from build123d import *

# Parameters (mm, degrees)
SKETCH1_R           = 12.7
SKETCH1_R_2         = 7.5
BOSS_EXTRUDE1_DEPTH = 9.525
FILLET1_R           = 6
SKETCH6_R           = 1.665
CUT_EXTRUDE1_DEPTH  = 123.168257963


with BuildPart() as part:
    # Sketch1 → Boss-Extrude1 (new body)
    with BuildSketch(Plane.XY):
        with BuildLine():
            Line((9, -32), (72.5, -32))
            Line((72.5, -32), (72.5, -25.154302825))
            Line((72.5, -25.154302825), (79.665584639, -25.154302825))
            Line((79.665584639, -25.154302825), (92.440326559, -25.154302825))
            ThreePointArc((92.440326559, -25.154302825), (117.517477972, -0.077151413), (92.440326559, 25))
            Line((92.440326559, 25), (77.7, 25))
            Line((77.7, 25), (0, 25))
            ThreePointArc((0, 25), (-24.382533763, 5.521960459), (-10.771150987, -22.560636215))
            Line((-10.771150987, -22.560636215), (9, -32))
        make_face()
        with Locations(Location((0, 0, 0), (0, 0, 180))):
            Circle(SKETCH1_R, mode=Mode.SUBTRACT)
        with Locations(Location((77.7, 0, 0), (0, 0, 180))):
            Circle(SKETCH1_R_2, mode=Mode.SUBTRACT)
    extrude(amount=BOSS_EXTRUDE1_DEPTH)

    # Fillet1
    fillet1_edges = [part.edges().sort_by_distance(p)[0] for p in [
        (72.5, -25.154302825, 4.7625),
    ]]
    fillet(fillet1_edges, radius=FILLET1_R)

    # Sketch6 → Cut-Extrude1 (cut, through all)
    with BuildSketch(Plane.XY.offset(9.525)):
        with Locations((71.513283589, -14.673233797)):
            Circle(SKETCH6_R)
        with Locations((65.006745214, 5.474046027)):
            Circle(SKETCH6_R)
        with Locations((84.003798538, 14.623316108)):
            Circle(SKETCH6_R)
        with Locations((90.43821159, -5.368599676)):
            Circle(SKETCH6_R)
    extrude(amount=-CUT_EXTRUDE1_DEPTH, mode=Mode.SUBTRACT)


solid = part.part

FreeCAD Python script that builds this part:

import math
import FreeCAD as App
import Part
import Sketcher
from FreeCAD import Vector
Q = App.Units.Quantity


def edges_at(feature, points):
    """Names of the edges that pass closest to the given points."""
    edges = feature.Shape.Edges
    near = lambda p: min(range(len(edges)), key=lambda i: edges[i].distToShape(Part.Vertex(*p))[0])
    return sorted({f"Edge{near(p) + 1}" for p in points})

doc = App.newDocument("Part")
body = doc.addObject("PartDesign::Body", "Body")

# Sketch on XY plane
sketch1 = body.newObject("Sketcher::SketchObject", "Sketch")
sketch1.AttachmentSupport = (doc.getObject("XY_Plane"), [""])
sketch1.MapMode = "FlatFace"
sketch1.addGeometry([
    Part.LineSegment(Vector(9, -32, 0), Vector(72.5, -32, 0)),  # 0
    Part.LineSegment(Vector(72.5, -32, 0), Vector(72.5, -25.154303, 0)),  # 1
    Part.LineSegment(Vector(72.5, -25.154303, 0), Vector(92.440327, -25.154303, 0)),  # 2
    Part.ArcOfCircle(Part.Circle(Vector(92.440327, -0.077151, 0), Vector(0, 0, 1), 25.077151), math.radians(-90), math.radians(90)),  # 3
    Part.LineSegment(Vector(92.440327, 25, 0), Vector(0, 25, 0)),  # 4
    Part.ArcOfCircle(Part.Circle(Vector(0, 0, 0), Vector(0, 0, 1), 25), math.radians(90), math.radians(244.478736)),  # 5
    Part.LineSegment(Vector(-10.771151, -22.560636, 0), Vector(9, -32, 0)),  # 6
    Part.Circle(Vector(0, 0, 0), Vector(0, 0, 1), 12.7),  # 7
    Part.Circle(Vector(77.7, 0, 0), Vector(0, 0, 1), 7.5),  # 8
], False)
sketch1.addConstraint([
    Sketcher.Constraint("Coincident", 0, 2, 1, 1),
    Sketcher.Constraint("Coincident", 1, 2, 2, 1),
    Sketcher.Constraint("Tangent", 2, 2, 3, 1),
    Sketcher.Constraint("Tangent", 3, 2, 4, 1),
    Sketcher.Constraint("Tangent", 4, 2, 5, 1),
    Sketcher.Constraint("Tangent", 5, 2, 6, 1),
    Sketcher.Constraint("Coincident", 6, 2, 0, 1),
    Sketcher.Constraint("Horizontal", 0),
    Sketcher.Constraint("Vertical", 1),
    Sketcher.Constraint("Horizontal", 2),
    Sketcher.Constraint("Horizontal", 4),
    Sketcher.Constraint("Coincident", 5, 3, -1, 1),
    Sketcher.Constraint("Coincident", 7, 3, -1, 1),
    Sketcher.Constraint("PointOnObject", 8, 3, -1),
    Sketcher.Constraint("Diameter", 8, Q("15 mm")),
    Sketcher.Constraint("Radius", 5, Q("25 mm")),
    Sketcher.Constraint("Diameter", 7, Q("25.4 mm")),
    Sketcher.Constraint("DistanceX", 0, 1, 0, 2, Q("63.5 mm")),
    Sketcher.Constraint("DistanceY", 0, 2, -1, 1, Q("32 mm")),
    Sketcher.Constraint("DistanceX", -1, 1, 6, 2, Q("9 mm")),
    Sketcher.Constraint("DistanceX", -1, 1, 8, 3, Q("77.7 mm")),
    Sketcher.Constraint("Radius", 3, Q("25.077151 mm")),
    Sketcher.Constraint("DistanceX", 2, 1, 2, 2, Q("19.940327 mm")),
])
pad1 = body.newObject("PartDesign::Pad", "Pad")
pad1.Profile = sketch1
pad1.Length = 9.525
doc.recompute()

fillet = body.newObject("PartDesign::Fillet", "Fillet")
fillet.Base = (pad1, edges_at(pad1, [(72.5, -25.154, 4.763)]))
fillet.Radius = 6

# Sketch on XY plane
sketch2 = body.newObject("Sketcher::SketchObject", "Sketch001")
sketch2.AttachmentSupport = (doc.getObject("XY_Plane"), [""])
sketch2.MapMode = "FlatFace"
sketch2.AttachmentOffset = App.Placement(Vector(0, 0, 9.525), App.Rotation())
sketch2.addGeometry([
    Part.Circle(Vector(71.513284, -14.673234, 0), Vector(0, 0, 1), 1.665),
    Part.Circle(Vector(65.006745, 5.474046, 0), Vector(0, 0, 1), 1.665),
    Part.Circle(Vector(84.003799, 14.623316, 0), Vector(0, 0, 1), 1.665),
    Part.Circle(Vector(90.438212, -5.3686, 0), Vector(0, 0, 1), 1.665),
], False)
sketch2.addConstraint([
    Sketcher.Constraint("Equal", 0, 1),
    Sketcher.Constraint("Equal", 1, 2),
    Sketcher.Constraint("Equal", 2, 3),
    Sketcher.Constraint("Diameter", 0, Q("3.33 mm")),
    Sketcher.Constraint("DistanceX", -1, 1, 2, 3, Q("84.003799 mm")),
    Sketcher.Constraint("DistanceY", 3, 3, -1, 1, Q("5.3686 mm")),
    Sketcher.Constraint("DistanceX", -1, 1, 3, 3, Q("90.438212 mm")),
    Sketcher.Constraint("DistanceX", 1, 3, 0, 3, Q("6.506538 mm")),
    Sketcher.Constraint("DistanceY", 0, 3, 1, 3, Q("20.14728 mm")),
    Sketcher.Constraint("DistanceY", 1, 3, 2, 3, Q("9.14927 mm")),
    Sketcher.Constraint("DistanceX", 0, 3, 3, 3, Q("18.924928 mm")),
    Sketcher.Constraint("DistanceY", 0, 3, -1, 1, Q("14.673234 mm")),
])
pocket1 = body.newObject("PartDesign::Pocket", "Pocket")
pocket1.Profile = sketch2
pocket1.Type = "ThroughAll"

doc.recompute()
